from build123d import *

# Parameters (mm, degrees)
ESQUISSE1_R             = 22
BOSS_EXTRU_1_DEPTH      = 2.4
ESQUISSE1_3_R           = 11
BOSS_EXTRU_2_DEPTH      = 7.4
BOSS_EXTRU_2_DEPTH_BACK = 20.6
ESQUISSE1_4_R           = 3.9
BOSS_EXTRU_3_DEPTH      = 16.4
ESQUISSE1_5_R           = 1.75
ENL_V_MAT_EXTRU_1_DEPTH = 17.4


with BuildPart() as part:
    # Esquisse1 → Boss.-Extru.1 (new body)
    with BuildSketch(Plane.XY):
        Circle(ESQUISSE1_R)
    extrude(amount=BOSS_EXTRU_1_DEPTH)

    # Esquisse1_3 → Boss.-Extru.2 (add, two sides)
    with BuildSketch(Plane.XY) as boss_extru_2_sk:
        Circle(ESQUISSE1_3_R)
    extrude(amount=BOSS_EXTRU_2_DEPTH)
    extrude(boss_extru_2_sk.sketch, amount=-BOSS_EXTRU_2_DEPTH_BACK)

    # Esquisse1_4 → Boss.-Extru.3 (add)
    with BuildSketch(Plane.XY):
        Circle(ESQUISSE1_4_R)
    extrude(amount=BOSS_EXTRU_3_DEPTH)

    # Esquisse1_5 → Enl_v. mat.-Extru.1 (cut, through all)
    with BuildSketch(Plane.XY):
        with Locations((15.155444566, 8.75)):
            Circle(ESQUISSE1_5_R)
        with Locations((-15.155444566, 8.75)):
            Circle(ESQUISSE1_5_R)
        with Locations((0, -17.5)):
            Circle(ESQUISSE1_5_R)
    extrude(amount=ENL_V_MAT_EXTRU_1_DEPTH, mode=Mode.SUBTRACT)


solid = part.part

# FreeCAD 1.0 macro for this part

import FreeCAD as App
import Part
import Sketcher
from FreeCAD import Vector
Q = App.Units.Quantity

doc = App.newDocument("Part")
body = doc.addObject("PartDesign::Body", "Body")

# Sketch on XY plane
sketch1 = body.newObject("Sketcher::SketchObject", "Sketch")
sketch1.AttachmentSupport = (doc.getObject("XY_Plane"), [""])
sketch1.MapMode = "FlatFace"
sketch1.addGeometry(Part.Circle(Vector(0, 0, 0), Vector(0, 0, 1), 22), False)
sketch1.addConstraint([
    Sketcher.Constraint("Coincident", 0, 3, -1, 1),
    Sketcher.Constraint("Diameter", 0, Q("44 mm")),
])
pad1 = body.newObject("PartDesign::Pad", "Pad")
pad1.Profile = sketch1
pad1.Length = 2.4

# Sketch on XY plane
sketch2 = body.newObject("Sketcher::SketchObject", "Sketch001")
sketch2.AttachmentSupport = (doc.getObject("XY_Plane"), [""])
sketch2.MapMode = "FlatFace"
sketch2.addGeometry(Part.Circle(Vector(0, 0, 0), Vector(0, 0, 1), 11), False)
sketch2.addConstraint([
    Sketcher.Constraint("Coincident", 0, 3, -1, 1),
    Sketcher.Constraint("Diameter", 0, Q("22 mm")),
])
pad2 = body.newObject("PartDesign::Pad", "Pad001")
pad2.Profile = sketch2
pad2.Type = "TwoLengths"
pad2.Length = 7.4
pad2.Length2 = 20.6

# Sketch on XY plane
sketch3 = body.newObject("Sketcher::SketchObject", "Sketch002")
sketch3.AttachmentSupport = (doc.getObject("XY_Plane"), [""])
sketch3.MapMode = "FlatFace"
sketch3.addGeometry(Part.Circle(Vector(0, 0, 0), Vector(0, 0, 1), 3.9), False)
sketch3.addConstraint([
    Sketcher.Constraint("Coincident", 0, 3, -1, 1),
    Sketcher.Constraint("Diameter", 0, Q("7.8 mm")),
])
pad3 = body.newObject("PartDesign::Pad", "Pad002")
pad3.Profile = sketch3
pad3.Length = 16.4

# Sketch on XY plane
sketch4 = body.newObject("Sketcher::SketchObject", "Sketch003")
sketch4.AttachmentSupport = (doc.getObject("XY_Plane"), [""])
sketch4.MapMode = "FlatFace"
sketch4.addGeometry([
    Part.Circle(Vector(15.2, 8.8, 0), Vector(0, 0, 1), 1.8),
    Part.Circle(Vector(-15.2, 8.8, 0), Vector(0, 0, 1), 1.8),
    Part.Circle(Vector(0, -17.5, 0), Vector(0, 0, 1), 1.8),
], False)
sketch4.addConstraint([
    Sketcher.Constraint("Equal", 0, 1),
    Sketcher.Constraint("Equal", 1, 2),
    Sketcher.Constraint("Symmetric", 0, 3, 1, 3, -2),
    Sketcher.Constraint("PointOnObject", 2, 3, -2),
    Sketcher.Constraint("Diameter", 0, Q("3.5 mm")),
    Sketcher.Constraint("DistanceY", 2, 3, -1, 1, Q("17.5 mm")),
    Sketcher.Constraint("DistanceY", -1, 1, 0, 3, Q("8.75 mm")),
    Sketcher.Constraint("DistanceX", 1, 3, 0, 3, Q("30.310889 mm")),
])
pocket1 = body.newObject("PartDesign::Pocket", "Pocket")
pocket1.Profile = sketch4
pocket1.Type = "ThroughAll"
pocket1.Reversed = True

doc.recompute()
